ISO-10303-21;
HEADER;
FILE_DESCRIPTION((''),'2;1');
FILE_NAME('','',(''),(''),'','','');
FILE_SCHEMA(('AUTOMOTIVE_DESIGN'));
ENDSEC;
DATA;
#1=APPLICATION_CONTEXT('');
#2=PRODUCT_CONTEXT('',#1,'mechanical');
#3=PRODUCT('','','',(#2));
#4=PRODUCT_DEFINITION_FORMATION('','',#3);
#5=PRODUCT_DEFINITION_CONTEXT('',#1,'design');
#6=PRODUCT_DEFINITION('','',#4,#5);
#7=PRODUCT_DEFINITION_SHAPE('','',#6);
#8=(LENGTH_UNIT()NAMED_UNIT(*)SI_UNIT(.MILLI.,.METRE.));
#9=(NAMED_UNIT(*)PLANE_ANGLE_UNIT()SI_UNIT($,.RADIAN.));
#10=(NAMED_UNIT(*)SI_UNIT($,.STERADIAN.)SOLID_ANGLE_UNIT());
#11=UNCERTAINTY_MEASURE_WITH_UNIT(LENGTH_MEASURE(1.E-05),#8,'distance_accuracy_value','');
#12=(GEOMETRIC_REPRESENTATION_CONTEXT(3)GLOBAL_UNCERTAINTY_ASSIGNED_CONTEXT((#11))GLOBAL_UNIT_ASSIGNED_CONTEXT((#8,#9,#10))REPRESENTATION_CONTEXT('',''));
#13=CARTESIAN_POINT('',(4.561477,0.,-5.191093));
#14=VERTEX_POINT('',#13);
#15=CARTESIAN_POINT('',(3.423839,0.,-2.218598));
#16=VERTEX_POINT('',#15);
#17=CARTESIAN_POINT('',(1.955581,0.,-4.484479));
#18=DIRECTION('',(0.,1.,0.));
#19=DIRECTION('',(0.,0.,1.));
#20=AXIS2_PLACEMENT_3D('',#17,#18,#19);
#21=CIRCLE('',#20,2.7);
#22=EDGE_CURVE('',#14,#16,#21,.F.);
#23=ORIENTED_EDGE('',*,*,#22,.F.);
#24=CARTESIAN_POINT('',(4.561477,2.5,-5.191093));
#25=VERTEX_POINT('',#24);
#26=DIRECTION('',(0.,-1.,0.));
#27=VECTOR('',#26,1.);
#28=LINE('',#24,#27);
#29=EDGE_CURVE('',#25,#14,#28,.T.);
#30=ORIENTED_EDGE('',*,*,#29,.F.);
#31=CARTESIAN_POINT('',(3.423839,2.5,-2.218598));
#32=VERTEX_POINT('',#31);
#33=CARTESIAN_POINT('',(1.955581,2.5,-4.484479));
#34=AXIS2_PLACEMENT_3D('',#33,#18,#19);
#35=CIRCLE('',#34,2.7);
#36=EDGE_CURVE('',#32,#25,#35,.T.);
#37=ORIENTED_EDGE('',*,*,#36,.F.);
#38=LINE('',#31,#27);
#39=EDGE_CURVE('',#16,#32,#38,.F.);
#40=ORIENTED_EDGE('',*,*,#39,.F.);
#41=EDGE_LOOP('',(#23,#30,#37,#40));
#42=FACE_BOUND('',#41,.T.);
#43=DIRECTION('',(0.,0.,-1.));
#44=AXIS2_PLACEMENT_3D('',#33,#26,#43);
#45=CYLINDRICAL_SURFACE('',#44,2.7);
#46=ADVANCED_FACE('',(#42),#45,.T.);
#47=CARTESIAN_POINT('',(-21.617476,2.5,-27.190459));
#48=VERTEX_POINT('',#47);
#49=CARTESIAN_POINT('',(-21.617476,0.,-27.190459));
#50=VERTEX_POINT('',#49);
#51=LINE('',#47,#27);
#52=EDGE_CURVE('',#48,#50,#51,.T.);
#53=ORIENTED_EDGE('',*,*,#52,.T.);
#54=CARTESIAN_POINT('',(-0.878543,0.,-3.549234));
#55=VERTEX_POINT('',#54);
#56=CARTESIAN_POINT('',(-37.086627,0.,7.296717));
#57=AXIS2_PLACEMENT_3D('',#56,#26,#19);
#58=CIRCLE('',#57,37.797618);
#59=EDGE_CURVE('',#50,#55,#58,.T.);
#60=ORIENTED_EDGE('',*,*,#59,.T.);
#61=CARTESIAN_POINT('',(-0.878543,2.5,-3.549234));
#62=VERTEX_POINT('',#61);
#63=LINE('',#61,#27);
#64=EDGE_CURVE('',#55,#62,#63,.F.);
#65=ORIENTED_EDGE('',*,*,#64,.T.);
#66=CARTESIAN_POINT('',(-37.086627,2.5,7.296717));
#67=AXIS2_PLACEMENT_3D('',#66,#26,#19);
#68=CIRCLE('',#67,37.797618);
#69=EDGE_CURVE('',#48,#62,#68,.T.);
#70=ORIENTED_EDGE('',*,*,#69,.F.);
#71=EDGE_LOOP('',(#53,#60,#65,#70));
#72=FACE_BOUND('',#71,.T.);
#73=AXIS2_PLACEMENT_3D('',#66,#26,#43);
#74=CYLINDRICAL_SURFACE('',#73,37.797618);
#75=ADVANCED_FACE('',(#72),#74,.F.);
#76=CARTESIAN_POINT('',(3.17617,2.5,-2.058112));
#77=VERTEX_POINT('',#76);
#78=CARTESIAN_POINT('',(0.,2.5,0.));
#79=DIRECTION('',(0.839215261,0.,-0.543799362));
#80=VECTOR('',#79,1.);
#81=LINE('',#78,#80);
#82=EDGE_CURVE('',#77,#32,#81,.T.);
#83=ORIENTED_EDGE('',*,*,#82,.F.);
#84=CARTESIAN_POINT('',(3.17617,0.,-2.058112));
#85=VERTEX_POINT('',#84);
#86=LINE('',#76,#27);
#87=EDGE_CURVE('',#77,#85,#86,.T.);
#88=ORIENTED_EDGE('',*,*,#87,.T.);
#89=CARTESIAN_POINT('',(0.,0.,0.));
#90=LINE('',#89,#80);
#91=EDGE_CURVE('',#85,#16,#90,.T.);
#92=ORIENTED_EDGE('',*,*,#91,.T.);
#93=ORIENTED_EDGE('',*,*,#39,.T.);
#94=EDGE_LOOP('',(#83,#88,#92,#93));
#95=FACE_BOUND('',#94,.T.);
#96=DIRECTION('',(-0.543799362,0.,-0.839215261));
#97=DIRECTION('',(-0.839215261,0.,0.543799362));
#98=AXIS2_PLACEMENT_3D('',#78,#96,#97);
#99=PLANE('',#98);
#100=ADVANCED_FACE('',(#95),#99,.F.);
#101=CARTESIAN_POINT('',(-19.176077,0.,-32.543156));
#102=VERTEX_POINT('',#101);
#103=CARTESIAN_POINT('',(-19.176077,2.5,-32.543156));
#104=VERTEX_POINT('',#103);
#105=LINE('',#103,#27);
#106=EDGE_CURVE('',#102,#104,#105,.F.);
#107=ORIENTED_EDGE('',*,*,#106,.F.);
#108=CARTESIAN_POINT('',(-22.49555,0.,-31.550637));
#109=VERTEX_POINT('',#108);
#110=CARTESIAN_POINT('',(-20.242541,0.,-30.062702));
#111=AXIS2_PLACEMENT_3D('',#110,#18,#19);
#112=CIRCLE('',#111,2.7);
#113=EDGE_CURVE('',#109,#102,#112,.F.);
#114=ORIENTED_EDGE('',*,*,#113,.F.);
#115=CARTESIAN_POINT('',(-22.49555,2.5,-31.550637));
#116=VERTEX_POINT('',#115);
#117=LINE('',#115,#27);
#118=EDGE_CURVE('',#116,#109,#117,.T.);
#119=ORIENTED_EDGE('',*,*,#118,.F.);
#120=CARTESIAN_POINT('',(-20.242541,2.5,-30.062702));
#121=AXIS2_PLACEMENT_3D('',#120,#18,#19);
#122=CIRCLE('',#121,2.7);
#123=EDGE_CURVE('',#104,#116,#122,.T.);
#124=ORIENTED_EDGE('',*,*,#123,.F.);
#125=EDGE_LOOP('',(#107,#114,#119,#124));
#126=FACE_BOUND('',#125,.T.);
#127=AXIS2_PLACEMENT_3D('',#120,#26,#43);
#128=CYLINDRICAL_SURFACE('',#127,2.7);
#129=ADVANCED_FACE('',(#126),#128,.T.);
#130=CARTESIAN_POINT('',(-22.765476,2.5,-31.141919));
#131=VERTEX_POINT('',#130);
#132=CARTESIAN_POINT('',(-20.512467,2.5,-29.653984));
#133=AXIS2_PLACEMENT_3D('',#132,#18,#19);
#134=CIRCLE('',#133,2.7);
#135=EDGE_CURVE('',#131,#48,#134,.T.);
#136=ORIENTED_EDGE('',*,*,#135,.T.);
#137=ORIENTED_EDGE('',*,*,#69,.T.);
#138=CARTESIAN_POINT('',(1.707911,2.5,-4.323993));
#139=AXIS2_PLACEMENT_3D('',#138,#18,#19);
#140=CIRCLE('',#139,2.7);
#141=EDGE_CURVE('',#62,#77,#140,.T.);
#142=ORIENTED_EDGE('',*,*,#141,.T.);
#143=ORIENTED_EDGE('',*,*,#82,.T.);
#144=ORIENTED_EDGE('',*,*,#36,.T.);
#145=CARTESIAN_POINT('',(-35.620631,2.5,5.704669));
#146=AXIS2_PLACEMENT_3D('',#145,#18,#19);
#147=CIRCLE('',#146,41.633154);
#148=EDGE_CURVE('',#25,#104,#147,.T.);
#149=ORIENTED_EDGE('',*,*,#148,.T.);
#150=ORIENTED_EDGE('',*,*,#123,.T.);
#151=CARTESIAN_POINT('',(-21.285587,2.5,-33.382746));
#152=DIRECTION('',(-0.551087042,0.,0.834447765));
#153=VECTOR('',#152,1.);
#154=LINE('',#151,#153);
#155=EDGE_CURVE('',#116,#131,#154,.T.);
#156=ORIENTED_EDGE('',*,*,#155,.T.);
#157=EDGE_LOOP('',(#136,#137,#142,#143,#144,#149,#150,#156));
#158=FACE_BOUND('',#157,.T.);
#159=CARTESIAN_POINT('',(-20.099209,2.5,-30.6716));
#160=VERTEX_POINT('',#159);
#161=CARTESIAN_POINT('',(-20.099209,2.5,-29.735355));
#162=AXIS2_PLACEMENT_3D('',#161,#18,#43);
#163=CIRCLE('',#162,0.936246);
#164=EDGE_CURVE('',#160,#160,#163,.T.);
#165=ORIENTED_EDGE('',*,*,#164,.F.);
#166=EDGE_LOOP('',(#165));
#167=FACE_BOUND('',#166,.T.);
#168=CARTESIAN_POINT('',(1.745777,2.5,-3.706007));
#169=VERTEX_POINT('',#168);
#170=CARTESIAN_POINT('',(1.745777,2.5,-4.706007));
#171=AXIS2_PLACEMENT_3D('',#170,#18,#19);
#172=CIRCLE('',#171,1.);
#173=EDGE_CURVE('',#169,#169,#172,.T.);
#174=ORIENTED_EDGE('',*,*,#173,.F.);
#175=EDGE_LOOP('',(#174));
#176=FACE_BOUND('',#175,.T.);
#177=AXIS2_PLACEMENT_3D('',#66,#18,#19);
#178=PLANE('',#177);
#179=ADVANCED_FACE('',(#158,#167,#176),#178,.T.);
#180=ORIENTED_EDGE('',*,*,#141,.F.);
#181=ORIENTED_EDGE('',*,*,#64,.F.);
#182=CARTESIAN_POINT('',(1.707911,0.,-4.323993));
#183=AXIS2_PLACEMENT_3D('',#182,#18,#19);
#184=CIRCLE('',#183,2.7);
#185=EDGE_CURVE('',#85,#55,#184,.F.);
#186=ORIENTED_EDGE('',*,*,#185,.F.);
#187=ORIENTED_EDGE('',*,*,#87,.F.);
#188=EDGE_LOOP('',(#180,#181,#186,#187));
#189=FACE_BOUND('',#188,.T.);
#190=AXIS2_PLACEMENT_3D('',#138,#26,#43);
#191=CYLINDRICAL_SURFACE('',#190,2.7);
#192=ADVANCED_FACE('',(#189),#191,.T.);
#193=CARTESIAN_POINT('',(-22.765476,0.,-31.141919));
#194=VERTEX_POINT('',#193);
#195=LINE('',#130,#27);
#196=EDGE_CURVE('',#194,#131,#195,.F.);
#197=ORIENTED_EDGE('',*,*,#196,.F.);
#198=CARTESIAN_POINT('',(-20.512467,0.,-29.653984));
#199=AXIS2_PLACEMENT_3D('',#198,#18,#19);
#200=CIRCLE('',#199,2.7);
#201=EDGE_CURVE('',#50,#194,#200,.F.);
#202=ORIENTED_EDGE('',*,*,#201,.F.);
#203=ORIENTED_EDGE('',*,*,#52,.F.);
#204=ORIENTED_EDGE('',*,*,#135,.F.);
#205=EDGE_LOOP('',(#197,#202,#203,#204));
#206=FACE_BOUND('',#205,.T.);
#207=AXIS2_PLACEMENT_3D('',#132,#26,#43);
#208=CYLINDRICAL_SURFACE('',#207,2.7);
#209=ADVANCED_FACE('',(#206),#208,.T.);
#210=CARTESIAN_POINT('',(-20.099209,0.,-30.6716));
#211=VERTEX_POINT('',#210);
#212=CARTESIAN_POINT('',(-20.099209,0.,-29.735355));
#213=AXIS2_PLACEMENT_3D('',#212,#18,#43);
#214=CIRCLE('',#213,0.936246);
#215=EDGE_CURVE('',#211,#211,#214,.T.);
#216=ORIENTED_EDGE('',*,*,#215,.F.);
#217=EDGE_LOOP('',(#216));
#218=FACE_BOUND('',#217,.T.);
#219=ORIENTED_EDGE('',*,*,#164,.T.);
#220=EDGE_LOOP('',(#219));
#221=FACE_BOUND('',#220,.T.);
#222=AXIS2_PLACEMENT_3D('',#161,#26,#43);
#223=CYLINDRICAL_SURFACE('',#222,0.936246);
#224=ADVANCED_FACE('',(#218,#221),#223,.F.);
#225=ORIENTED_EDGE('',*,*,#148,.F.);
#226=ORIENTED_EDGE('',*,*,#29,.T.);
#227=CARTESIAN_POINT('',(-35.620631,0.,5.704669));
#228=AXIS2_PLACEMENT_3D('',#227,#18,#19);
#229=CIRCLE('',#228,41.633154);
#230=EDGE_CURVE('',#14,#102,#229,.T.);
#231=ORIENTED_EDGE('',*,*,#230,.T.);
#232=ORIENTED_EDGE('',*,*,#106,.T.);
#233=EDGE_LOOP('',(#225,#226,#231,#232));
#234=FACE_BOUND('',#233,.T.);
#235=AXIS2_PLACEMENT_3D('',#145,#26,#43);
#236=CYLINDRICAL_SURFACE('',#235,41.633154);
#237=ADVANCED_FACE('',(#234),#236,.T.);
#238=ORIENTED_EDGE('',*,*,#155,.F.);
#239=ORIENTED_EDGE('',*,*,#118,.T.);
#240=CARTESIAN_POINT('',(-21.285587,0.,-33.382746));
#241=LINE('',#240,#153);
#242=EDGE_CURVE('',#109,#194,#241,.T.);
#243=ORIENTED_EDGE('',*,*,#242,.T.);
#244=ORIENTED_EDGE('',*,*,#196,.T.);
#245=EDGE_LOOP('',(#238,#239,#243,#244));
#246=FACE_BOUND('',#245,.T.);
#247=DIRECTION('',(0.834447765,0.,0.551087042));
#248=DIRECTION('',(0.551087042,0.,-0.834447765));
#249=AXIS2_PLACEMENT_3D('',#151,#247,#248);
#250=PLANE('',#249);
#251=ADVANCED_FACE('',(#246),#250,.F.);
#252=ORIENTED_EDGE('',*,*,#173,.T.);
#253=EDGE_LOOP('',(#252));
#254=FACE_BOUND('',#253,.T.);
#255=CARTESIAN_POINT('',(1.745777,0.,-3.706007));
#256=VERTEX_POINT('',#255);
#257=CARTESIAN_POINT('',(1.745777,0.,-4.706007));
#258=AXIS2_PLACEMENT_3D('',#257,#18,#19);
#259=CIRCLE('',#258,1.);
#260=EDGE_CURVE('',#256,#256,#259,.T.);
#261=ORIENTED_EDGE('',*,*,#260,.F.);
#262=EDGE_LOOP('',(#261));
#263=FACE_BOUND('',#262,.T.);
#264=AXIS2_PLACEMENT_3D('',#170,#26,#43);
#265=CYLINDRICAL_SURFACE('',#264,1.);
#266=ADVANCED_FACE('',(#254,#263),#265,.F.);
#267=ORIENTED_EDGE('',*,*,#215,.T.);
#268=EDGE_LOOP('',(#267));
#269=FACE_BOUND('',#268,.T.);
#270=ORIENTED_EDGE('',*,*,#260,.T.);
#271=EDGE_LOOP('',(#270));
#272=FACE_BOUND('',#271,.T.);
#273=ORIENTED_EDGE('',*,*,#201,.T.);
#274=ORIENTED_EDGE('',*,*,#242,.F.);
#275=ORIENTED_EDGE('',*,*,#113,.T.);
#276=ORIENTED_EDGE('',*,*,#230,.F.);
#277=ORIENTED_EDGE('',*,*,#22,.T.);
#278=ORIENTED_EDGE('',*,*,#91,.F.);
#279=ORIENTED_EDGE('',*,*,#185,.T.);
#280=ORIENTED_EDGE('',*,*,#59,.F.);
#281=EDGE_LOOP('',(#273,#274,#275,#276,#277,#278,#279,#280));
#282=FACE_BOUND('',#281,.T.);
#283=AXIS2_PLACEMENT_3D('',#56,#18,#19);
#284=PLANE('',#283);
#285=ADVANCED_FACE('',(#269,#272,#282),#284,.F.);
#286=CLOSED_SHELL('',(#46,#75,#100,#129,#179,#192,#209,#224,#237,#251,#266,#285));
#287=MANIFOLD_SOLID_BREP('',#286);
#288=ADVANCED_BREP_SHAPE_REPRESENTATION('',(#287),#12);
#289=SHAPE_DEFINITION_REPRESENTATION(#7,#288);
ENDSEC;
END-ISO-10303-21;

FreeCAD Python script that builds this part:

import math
import FreeCAD as App
import Part
import Sketcher
from FreeCAD import Vector


def edges_at(feature, points):
    """Names of the edges that pass closest to the given points."""
    edges = feature.Shape.Edges
    near = lambda p: min(range(len(edges)), key=lambda i: edges[i].distToShape(Part.Vertex(*p))[0])
    return sorted({f"Edge{near(p) + 1}" for p in points})

doc = App.newDocument("Part")
params = doc.addObject("Spreadsheet::Sheet", "Params")
for row, (alias, value) in enumerate([
    ("sketch1_diameter", "2 mm"),
    ("sketch1_length", "6 mm"),
    ("pad1_length", "2.5 mm"),
    ("fillet_radius", "2.7 mm"),
], start=1):
    params.set(f"A{row}", alias)
    params.set(f"B{row}", "=" + value)
    params.setAlias(f"B{row}", alias)

body = doc.addObject("PartDesign::Body", "Body")

# Sketch on XZ plane
sketch1 = body.newObject("Sketcher::SketchObject", "Sketch")
sketch1.AttachmentSupport = (doc.getObject("XZ_Plane"), [""])
sketch1.MapMode = "FlatFace"
sketch1.addGeometry(Part.LineSegment(Vector(0, 0, 0), Vector(5, -3.3, 0)), False)
sketch1.addGeometry(Part.ArcOfCircle(Part.Circle(Vector(-35.6, 5.7, 0), Vector(0, 0, 1), 41.6), math.radians(-70), math.radians(-12)), False)
sketch1.addGeometry(Part.LineSegment(Vector(-21.3, -33.4, 0), Vector(-24.6, -28.4, 0)), False)
sketch1.addGeometry(Part.ArcOfCircle(Part.Circle(Vector(-37.1, 7.3, 0), Vector(0, 0, 1), 37.8), math.radians(-71), math.radians(-11)), False)
sketch1.addGeometry(Part.Circle(Vector(1.7, -4.7, 0), Vector(0, 0, 1), 1), False)
sketch1.addGeometry(Part.Circle(Vector(-20.1, -29.7, 0), Vector(0, 0, 1), 0.9), False)
sketch1.addConstraint(Sketcher.Constraint("Coincident", 0, 2, 1, 2))
sketch1.addConstraint(Sketcher.Constraint("Coincident", 1, 1, 2, 1))
sketch1.addConstraint(Sketcher.Constraint("Coincident", 2, 2, 3, 1))
sketch1.addConstraint(Sketcher.Constraint("Coincident", 3, 2, 0, 1))
sketch1.addConstraint(Sketcher.Constraint("Coincident", 3, 2, -1, 1))
sketch1.addConstraint(Sketcher.Constraint("Equal", 0, 2))
sketch1.addConstraint(Sketcher.Constraint("Diameter", 4, 2.0))
sketch1.addConstraint(Sketcher.Constraint("Distance", 0, 6.0))
sketch1.addConstraint(Sketcher.Constraint("Diameter", 5, 1.872491))
sketch1.addConstraint(Sketcher.Constraint("Radius", 3, 37.797618))
sketch1.addConstraint(Sketcher.Constraint("Radius", 1, 41.633154))
sketch1.addConstraint(Sketcher.Constraint("DistanceX", 5, 3, 0, 2, 25.134501))
sketch1.addConstraint(Sketcher.Constraint("DistanceX", 2, 2, 5, 3, 4.4929))
sketch1.addConstraint(Sketcher.Constraint("DistanceX", 1, 3, -1, 1, 35.620631))
sketch1.addConstraint(Sketcher.Constraint("DistanceY", -1, 1, 1, 3, 5.704669))
sketch1.addConstraint(Sketcher.Constraint("DistanceY", 2, 2, -1, 1, 28.376059))
sketch1.addConstraint(Sketcher.Constraint("DistanceX", 1, 3, 4, 3, 37.366409))
sketch1.addConstraint(Sketcher.Constraint("DistanceY", 5, 3, 3, 3, 37.032072))
sketch1.addConstraint(Sketcher.Constraint("DistanceY", 4, 3, 0, 2, 1.443211))
sketch1.setExpression("Constraints[6]", "Params.sketch1_diameter")
sketch1.setExpression("Constraints[7]", "Params.sketch1_length")
pad1 = body.newObject("PartDesign::Pad", "Pad")
pad1.Profile = sketch1
pad1.setExpression("Length", "Params.pad1_length")
pad1.Reversed = True
doc.recompute()

fillet = body.newObject("PartDesign::Fillet", "Fillet")
fillet.Base = (pad1, edges_at(pad1, [
    (-24.592, 1.25, -28.376),
    (-21.286, 1.25, -33.383),
    (5.035, 1.25, -3.263),
    (0, 1.25, 0),
]))
fillet.setExpression("Radius", "Params.fillet_radius")

doc.recompute()
